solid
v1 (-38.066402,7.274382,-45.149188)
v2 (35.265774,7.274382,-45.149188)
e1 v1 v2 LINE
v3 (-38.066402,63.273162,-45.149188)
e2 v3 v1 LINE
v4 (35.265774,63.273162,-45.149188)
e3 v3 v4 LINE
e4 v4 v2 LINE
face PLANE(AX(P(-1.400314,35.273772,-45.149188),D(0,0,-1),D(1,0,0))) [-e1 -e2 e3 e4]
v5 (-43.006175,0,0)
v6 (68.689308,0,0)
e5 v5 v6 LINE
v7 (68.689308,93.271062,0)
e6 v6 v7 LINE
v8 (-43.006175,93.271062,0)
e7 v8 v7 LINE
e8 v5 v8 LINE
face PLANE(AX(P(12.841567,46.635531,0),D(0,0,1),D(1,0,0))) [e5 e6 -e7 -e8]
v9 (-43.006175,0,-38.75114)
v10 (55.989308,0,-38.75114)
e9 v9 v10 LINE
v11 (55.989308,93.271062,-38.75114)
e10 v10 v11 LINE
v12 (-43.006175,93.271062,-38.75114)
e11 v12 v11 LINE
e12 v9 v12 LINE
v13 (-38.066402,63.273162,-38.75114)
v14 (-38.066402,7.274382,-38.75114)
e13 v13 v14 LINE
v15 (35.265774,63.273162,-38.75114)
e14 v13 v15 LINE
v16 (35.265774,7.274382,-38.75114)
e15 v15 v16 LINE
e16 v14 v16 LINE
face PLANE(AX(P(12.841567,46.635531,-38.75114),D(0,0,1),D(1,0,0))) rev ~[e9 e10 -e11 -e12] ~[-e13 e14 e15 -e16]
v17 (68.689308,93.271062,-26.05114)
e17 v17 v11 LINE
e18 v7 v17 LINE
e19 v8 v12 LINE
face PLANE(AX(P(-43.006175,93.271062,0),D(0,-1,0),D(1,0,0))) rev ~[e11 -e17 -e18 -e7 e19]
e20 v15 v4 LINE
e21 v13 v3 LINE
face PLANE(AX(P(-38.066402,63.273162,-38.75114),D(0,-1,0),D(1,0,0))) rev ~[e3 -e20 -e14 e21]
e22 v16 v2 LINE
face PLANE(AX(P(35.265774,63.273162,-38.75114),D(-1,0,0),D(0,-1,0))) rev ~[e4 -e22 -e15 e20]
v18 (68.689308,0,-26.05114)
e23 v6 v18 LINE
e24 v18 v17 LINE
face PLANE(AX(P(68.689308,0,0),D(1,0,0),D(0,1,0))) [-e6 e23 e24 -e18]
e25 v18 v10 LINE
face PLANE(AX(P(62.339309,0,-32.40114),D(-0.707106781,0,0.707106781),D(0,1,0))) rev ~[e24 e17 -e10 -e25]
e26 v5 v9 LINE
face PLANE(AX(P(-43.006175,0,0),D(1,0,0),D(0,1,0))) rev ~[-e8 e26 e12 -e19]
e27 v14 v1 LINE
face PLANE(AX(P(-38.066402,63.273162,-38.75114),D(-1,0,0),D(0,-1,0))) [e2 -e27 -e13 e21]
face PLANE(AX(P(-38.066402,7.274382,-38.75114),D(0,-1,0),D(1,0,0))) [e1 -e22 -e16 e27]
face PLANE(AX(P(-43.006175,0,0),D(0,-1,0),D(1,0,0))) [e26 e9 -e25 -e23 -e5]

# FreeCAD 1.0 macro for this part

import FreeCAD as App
import Part
import Sketcher

V = App.Vector
Q = App.Units.Quantity


def edges_at(feature, points):
    """Names of the edges that pass closest to the given points."""
    edges = feature.Shape.Edges
    near = lambda p: min(range(len(edges)), key=lambda i: edges[i].distToShape(Part.Vertex(*p))[0])
    return sorted({f"Edge{near(p) + 1}" for p in points})


def add_polygon(sketch, points):
    """Adds a closed chain of lines whose ends are joined by coincident constraints."""
    first, n = sketch.GeometryCount, len(points)
    for a, b in zip(points, points[1:] + points[:1]):
        sketch.addGeometry(Part.LineSegment(App.Vector(*a, 0), App.Vector(*b, 0)), False)
    for i in range(n):
        sketch.addConstraint(Sketcher.Constraint("Coincident", first + i, 2, first + (i + 1) % n, 1))

doc = App.newDocument("Part")
body = doc.addObject("PartDesign::Body", "Body")

# Sketch on XY plane
sketch1 = body.newObject("Sketcher::SketchObject", "Sketch")
sketch1.AttachmentSupport = (doc.getObject("XY_Plane"), [""])
sketch1.MapMode = "FlatFace"
add_polygon(sketch1, [(-43.006175, 93.271062), (-43.006175, 0), (68.689308, 0), (68.689308, 93.271062)])  # lines 0-3
sketch1.addConstraint(Sketcher.Constraint("Vertical", 0))
sketch1.addConstraint(Sketcher.Constraint("Horizontal", 1))
sketch1.addConstraint(Sketcher.Constraint("Vertical", 2))
sketch1.addConstraint(Sketcher.Constraint("Horizontal", 3))
sketch1.addConstraint(Sketcher.Constraint("PointOnObject", 0, 2, -1))
sketch1.addConstraint(Sketcher.Constraint("DistanceY", 0, 2, 0, 1, 93.271062))
sketch1.addConstraint(Sketcher.Constraint("DistanceX", 1, 1, 1, 2, 111.695483))
sketch1.addConstraint(Sketcher.Constraint("DistanceX", -1, 1, 1, 2, 68.689308))
pad1 = body.newObject("PartDesign::Pad", "Pad")
pad1.Profile = sketch1
pad1.Length = 38.75114
pad1.Reversed = True
doc.recompute()

chamfer = body.newObject("PartDesign::Chamfer", "Chamfer")
chamfer.Base = (pad1, edges_at(pad1, [(68.689, 46.636, -38.751)]))
chamfer.Size = Q("0.5 in")

# Sketch on XY plane
sketch2 = body.newObject("Sketcher::SketchObject", "Sketch001")
sketch2.AttachmentSupport = (doc.getObject("XY_Plane"), [""])
sketch2.MapMode = "FlatFace"
sketch2.AttachmentOffset = App.Placement(V(0, 0, -38.75114), App.Rotation())
add_polygon(sketch2, [(-38.066402, 7.274382), (-38.066402, 63.273162), (35.265774, 63.273162), (35.265774, 7.274382)])  # lines 0-3
sketch2.addConstraint(Sketcher.Constraint("Vertical", 0))
sketch2.addConstraint(Sketcher.Constraint("Horizontal", 1))
sketch2.addConstraint(Sketcher.Constraint("Vertical", 2))
sketch2.addConstraint(Sketcher.Constraint("Horizontal", 3))
sketch2.addConstraint(Sketcher.Constraint("DistanceY", 0, 1, 0, 2, 55.99878))
sketch2.addConstraint(Sketcher.Constraint("DistanceX", 0, 2, -1, 1, 38.066402))
sketch2.addConstraint(Sketcher.Constraint("DistanceX", 1, 1, 1, 2, 73.332176))
sketch2.addConstraint(Sketcher.Constraint("DistanceY", -1, 1, 0, 2, 63.273162))
pad2 = body.newObject("PartDesign::Pad", "Pad001")
pad2.Profile = sketch2
pad2.Length = 6.398048
pad2.Reversed = True

doc.recompute()
